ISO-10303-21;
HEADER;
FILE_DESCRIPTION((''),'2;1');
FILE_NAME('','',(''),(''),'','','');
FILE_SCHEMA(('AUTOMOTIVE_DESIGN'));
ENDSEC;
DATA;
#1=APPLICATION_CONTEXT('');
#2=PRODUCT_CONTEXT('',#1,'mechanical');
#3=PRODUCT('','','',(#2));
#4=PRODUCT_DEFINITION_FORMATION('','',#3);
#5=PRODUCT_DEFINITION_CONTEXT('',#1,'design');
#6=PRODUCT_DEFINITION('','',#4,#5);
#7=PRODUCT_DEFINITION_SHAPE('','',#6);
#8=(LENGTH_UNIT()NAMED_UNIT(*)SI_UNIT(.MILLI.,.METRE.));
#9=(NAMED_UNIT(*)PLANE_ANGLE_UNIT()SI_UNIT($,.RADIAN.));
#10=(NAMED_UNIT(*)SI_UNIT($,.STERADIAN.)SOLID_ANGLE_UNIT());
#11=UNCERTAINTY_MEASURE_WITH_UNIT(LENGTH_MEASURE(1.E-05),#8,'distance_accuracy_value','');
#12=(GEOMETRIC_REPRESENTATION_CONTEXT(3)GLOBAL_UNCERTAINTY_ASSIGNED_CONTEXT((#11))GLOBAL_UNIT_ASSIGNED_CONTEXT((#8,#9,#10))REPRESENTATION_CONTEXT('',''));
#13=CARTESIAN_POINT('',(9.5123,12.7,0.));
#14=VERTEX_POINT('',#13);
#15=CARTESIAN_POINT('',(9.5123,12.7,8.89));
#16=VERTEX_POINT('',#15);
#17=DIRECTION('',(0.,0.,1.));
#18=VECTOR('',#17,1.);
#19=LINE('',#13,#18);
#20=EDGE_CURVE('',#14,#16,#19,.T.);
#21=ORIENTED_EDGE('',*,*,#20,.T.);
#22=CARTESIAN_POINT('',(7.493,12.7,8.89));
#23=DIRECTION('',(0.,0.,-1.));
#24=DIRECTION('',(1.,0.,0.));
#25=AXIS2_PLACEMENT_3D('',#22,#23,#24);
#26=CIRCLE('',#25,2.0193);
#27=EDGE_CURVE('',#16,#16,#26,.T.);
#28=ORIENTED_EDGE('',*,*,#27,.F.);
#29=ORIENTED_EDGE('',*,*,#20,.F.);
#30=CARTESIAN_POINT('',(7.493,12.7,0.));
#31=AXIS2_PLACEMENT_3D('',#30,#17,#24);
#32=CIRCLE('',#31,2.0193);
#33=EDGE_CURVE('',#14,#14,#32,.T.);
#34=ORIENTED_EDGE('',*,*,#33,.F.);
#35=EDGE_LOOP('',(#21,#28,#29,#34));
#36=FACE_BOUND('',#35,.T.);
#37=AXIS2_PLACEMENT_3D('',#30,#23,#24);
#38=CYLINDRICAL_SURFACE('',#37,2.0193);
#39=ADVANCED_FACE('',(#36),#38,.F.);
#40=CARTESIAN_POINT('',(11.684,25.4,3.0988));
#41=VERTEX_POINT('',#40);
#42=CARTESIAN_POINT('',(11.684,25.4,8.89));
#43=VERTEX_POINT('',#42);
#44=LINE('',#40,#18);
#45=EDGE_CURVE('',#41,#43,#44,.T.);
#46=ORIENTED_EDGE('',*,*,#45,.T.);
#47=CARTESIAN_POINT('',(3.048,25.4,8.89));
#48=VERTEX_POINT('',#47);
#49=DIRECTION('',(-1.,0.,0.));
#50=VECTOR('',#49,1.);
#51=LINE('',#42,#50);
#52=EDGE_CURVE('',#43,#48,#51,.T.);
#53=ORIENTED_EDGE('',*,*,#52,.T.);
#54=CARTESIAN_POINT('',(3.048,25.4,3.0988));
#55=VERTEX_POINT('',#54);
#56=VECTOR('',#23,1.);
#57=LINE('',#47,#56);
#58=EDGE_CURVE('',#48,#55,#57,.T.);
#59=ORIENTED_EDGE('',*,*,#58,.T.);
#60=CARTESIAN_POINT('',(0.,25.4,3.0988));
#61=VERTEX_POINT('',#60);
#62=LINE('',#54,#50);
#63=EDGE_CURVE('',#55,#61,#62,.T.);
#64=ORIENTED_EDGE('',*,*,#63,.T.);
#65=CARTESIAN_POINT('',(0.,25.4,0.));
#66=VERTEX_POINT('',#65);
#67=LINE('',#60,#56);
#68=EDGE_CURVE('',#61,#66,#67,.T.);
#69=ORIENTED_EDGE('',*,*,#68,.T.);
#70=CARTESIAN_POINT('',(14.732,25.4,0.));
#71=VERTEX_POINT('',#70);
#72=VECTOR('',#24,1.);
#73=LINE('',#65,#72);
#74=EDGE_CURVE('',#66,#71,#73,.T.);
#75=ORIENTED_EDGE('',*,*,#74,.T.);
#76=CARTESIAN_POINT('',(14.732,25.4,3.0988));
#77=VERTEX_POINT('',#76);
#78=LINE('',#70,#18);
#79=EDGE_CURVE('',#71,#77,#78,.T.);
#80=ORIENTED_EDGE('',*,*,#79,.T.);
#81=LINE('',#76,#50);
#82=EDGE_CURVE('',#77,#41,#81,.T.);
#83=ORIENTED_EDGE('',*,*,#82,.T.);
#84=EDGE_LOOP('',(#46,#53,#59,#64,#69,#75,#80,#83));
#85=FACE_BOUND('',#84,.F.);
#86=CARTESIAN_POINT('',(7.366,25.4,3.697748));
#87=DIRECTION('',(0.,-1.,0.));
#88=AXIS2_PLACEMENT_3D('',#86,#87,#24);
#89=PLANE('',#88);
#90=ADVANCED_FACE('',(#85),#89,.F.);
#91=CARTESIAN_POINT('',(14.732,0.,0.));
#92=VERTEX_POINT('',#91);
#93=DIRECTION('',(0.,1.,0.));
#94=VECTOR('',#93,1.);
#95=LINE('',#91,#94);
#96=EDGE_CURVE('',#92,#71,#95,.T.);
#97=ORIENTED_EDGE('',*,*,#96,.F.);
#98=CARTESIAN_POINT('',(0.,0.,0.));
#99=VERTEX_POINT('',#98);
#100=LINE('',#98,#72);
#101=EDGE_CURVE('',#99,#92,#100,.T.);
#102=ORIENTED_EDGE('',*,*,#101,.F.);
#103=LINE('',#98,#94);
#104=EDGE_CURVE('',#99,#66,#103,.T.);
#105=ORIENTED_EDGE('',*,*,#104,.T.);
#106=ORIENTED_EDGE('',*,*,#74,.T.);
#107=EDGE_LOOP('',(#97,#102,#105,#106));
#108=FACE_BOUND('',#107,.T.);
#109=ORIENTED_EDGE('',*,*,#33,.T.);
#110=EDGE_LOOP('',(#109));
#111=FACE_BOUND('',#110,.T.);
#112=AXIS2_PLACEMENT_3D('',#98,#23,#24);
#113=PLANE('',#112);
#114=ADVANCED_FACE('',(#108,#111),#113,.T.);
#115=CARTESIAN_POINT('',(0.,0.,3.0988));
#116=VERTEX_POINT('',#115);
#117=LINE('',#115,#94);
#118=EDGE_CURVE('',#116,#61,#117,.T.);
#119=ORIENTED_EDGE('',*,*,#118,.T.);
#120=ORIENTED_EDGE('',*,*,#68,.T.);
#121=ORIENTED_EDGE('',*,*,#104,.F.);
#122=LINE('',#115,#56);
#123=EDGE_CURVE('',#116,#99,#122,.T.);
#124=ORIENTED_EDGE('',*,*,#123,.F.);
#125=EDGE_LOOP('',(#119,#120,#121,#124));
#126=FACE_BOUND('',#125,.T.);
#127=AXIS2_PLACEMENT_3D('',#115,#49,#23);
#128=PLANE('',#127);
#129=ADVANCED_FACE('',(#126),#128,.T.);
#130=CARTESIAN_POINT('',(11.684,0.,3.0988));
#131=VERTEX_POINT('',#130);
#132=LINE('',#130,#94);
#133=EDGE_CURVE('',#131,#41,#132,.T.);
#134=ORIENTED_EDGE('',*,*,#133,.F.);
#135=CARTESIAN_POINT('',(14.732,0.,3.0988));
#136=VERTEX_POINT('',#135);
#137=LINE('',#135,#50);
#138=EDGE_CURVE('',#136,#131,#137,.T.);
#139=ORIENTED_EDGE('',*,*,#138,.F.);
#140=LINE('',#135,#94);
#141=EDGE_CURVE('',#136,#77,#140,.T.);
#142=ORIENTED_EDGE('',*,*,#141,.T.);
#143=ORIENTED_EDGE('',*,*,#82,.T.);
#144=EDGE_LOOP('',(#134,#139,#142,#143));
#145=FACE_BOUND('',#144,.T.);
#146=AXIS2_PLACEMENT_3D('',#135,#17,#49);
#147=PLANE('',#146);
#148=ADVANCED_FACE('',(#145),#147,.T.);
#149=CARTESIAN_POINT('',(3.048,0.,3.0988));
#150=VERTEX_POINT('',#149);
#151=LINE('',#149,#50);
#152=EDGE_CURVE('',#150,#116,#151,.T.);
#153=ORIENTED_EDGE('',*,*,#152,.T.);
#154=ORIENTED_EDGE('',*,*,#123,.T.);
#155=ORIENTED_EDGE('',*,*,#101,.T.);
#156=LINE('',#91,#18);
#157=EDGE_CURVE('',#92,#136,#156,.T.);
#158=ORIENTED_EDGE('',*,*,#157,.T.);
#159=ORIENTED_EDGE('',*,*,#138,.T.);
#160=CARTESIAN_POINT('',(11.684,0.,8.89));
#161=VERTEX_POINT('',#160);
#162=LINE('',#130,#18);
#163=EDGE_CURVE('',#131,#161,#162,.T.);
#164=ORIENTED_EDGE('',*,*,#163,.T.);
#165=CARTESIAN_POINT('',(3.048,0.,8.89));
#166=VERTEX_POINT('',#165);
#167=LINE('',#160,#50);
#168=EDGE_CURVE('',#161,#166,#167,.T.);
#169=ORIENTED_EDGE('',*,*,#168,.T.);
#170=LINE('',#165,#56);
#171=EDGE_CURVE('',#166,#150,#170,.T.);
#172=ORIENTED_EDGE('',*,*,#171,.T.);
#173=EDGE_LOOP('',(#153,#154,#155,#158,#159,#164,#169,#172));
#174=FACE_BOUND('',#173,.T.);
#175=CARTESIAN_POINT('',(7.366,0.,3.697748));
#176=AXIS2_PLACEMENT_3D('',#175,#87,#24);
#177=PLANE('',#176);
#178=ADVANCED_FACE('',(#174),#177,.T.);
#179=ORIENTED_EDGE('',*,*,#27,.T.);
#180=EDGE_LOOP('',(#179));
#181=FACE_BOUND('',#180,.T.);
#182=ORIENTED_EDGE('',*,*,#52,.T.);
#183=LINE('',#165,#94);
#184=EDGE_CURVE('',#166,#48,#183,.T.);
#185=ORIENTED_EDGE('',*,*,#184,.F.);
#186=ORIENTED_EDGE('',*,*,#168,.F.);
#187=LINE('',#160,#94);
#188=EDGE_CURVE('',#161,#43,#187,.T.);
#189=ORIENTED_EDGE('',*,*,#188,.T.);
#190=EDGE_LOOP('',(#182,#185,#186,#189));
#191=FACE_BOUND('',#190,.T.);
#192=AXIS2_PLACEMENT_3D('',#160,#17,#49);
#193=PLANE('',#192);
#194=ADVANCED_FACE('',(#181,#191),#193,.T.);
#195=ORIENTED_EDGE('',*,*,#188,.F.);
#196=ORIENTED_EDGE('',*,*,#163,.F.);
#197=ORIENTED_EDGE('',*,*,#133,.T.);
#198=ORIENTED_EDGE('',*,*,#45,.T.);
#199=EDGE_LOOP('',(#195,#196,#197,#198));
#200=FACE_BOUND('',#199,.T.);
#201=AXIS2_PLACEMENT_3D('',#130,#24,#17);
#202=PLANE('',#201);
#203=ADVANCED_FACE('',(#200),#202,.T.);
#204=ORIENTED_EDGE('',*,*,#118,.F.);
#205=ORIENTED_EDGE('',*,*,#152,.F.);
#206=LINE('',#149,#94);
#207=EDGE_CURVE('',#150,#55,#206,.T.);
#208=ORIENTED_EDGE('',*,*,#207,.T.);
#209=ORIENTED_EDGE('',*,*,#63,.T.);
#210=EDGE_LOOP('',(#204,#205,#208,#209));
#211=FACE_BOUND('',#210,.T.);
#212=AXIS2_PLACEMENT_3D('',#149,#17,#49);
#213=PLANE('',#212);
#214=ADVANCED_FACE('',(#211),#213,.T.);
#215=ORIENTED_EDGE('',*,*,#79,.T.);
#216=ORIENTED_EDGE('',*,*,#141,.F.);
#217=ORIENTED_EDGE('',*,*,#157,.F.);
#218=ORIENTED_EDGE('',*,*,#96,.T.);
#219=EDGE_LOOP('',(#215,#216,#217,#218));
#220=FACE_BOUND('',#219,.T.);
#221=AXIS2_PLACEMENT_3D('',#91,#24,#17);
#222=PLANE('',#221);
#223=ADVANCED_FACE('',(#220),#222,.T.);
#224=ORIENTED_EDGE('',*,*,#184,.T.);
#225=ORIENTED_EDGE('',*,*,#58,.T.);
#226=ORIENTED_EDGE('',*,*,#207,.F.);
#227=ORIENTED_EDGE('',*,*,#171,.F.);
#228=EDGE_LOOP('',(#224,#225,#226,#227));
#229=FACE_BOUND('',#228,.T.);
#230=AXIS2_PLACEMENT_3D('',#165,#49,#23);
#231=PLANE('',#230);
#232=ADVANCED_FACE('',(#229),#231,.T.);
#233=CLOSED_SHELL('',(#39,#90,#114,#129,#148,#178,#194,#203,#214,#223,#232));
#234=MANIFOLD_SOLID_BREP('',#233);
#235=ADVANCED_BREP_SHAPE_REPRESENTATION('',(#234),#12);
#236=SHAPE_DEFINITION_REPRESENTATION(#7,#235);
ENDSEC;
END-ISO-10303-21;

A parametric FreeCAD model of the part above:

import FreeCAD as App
import Part
import Sketcher
Q = App.Units.Quantity

doc = App.newDocument("Part")
body = doc.addObject("PartDesign::Body", "Body")

# Sketch on XZ plane
sketch1 = body.newObject("Sketcher::SketchObject", "Sketch")
sketch1.AttachmentSupport = (doc.getObject("XZ_Plane"), [""])
sketch1.MapMode = "FlatFace"
sketch1.addGeometry([
    Part.LineSegment(App.Vector(0, 3.1, 0), App.Vector(0, 0, 0)),  # 0
    Part.LineSegment(App.Vector(0, 0, 0), App.Vector(14.7, 0, 0)),  # 1
    Part.LineSegment(App.Vector(14.7, 0, 0), App.Vector(14.7, 3.1, 0)),  # 2
    Part.LineSegment(App.Vector(14.7, 3.1, 0), App.Vector(11.7, 3.1, 0)),  # 3
    Part.LineSegment(App.Vector(11.7, 3.1, 0), App.Vector(11.7, 8.9, 0)),  # 4
    Part.LineSegment(App.Vector(11.7, 8.9, 0), App.Vector(3, 8.9, 0)),  # 5
    Part.LineSegment(App.Vector(3, 8.9, 0), App.Vector(3, 3.1, 0)),  # 6
    Part.LineSegment(App.Vector(3, 3.1, 0), App.Vector(0, 3.1, 0)),  # 7
], False)
sketch1.addConstraint([
    Sketcher.Constraint("Coincident", 0, 2, 1, 1),
    Sketcher.Constraint("Coincident", 1, 2, 2, 1),
    Sketcher.Constraint("Coincident", 2, 2, 3, 1),
    Sketcher.Constraint("Coincident", 3, 2, 4, 1),
    Sketcher.Constraint("Coincident", 4, 2, 5, 1),
    Sketcher.Constraint("Coincident", 5, 2, 6, 1),
    Sketcher.Constraint("Coincident", 6, 2, 7, 1),
    Sketcher.Constraint("Coincident", 7, 2, 0, 1),
    Sketcher.Constraint("Vertical", 0),
    Sketcher.Constraint("Horizontal", 1),
    Sketcher.Constraint("Vertical", 2),
    Sketcher.Constraint("Horizontal", 3),
    Sketcher.Constraint("Vertical", 4),
    Sketcher.Constraint("Horizontal", 5),
    Sketcher.Constraint("Vertical", 6),
    Sketcher.Constraint("Horizontal", 7),
    Sketcher.Constraint("Coincident", 0, 2, -1, 1),
    Sketcher.Constraint("Horizontal", 3, 2, 6, 2),
    Sketcher.Constraint("Equal", 3, 7),
    Sketcher.Constraint("DistanceX", 1, 1, 1, 2, Q("0.58 in")),
    Sketcher.Constraint("DistanceX", 3, 2, 3, 1, Q("0.12 in")),
    Sketcher.Constraint("DistanceY", 0, 2, 0, 1, Q("0.122 in")),
    Sketcher.Constraint("DistanceY", 4, 1, 4, 2, Q("0.228 in")),
])
pad1 = body.newObject("PartDesign::Pad", "Pad")
pad1.Profile = sketch1
pad1.Length = Q("1 in")
pad1.Reversed = True

# Sketch on XY plane
sketch2 = body.newObject("Sketcher::SketchObject", "Sketch001")
sketch2.AttachmentSupport = (doc.getObject("XY_Plane"), [""])
sketch2.MapMode = "FlatFace"
sketch2.addGeometry(Part.Circle(App.Vector(7.5, 12.7, 0), App.Vector(0, 0, 1), 2), False)
sketch2.addConstraint([
    Sketcher.Constraint("Diameter", 0, Q("0.159 in")),
    Sketcher.Constraint("DistanceY", -1, 1, 0, 3, Q("0.5 in")),
    Sketcher.Constraint("DistanceX", -1, 1, 0, 3, Q("0.295 in")),
])
pocket1 = body.newObject("PartDesign::Pocket", "Pocket")
pocket1.Profile = sketch2
pocket1.Type = "ThroughAll"
pocket1.Reversed = True

doc.recompute()
